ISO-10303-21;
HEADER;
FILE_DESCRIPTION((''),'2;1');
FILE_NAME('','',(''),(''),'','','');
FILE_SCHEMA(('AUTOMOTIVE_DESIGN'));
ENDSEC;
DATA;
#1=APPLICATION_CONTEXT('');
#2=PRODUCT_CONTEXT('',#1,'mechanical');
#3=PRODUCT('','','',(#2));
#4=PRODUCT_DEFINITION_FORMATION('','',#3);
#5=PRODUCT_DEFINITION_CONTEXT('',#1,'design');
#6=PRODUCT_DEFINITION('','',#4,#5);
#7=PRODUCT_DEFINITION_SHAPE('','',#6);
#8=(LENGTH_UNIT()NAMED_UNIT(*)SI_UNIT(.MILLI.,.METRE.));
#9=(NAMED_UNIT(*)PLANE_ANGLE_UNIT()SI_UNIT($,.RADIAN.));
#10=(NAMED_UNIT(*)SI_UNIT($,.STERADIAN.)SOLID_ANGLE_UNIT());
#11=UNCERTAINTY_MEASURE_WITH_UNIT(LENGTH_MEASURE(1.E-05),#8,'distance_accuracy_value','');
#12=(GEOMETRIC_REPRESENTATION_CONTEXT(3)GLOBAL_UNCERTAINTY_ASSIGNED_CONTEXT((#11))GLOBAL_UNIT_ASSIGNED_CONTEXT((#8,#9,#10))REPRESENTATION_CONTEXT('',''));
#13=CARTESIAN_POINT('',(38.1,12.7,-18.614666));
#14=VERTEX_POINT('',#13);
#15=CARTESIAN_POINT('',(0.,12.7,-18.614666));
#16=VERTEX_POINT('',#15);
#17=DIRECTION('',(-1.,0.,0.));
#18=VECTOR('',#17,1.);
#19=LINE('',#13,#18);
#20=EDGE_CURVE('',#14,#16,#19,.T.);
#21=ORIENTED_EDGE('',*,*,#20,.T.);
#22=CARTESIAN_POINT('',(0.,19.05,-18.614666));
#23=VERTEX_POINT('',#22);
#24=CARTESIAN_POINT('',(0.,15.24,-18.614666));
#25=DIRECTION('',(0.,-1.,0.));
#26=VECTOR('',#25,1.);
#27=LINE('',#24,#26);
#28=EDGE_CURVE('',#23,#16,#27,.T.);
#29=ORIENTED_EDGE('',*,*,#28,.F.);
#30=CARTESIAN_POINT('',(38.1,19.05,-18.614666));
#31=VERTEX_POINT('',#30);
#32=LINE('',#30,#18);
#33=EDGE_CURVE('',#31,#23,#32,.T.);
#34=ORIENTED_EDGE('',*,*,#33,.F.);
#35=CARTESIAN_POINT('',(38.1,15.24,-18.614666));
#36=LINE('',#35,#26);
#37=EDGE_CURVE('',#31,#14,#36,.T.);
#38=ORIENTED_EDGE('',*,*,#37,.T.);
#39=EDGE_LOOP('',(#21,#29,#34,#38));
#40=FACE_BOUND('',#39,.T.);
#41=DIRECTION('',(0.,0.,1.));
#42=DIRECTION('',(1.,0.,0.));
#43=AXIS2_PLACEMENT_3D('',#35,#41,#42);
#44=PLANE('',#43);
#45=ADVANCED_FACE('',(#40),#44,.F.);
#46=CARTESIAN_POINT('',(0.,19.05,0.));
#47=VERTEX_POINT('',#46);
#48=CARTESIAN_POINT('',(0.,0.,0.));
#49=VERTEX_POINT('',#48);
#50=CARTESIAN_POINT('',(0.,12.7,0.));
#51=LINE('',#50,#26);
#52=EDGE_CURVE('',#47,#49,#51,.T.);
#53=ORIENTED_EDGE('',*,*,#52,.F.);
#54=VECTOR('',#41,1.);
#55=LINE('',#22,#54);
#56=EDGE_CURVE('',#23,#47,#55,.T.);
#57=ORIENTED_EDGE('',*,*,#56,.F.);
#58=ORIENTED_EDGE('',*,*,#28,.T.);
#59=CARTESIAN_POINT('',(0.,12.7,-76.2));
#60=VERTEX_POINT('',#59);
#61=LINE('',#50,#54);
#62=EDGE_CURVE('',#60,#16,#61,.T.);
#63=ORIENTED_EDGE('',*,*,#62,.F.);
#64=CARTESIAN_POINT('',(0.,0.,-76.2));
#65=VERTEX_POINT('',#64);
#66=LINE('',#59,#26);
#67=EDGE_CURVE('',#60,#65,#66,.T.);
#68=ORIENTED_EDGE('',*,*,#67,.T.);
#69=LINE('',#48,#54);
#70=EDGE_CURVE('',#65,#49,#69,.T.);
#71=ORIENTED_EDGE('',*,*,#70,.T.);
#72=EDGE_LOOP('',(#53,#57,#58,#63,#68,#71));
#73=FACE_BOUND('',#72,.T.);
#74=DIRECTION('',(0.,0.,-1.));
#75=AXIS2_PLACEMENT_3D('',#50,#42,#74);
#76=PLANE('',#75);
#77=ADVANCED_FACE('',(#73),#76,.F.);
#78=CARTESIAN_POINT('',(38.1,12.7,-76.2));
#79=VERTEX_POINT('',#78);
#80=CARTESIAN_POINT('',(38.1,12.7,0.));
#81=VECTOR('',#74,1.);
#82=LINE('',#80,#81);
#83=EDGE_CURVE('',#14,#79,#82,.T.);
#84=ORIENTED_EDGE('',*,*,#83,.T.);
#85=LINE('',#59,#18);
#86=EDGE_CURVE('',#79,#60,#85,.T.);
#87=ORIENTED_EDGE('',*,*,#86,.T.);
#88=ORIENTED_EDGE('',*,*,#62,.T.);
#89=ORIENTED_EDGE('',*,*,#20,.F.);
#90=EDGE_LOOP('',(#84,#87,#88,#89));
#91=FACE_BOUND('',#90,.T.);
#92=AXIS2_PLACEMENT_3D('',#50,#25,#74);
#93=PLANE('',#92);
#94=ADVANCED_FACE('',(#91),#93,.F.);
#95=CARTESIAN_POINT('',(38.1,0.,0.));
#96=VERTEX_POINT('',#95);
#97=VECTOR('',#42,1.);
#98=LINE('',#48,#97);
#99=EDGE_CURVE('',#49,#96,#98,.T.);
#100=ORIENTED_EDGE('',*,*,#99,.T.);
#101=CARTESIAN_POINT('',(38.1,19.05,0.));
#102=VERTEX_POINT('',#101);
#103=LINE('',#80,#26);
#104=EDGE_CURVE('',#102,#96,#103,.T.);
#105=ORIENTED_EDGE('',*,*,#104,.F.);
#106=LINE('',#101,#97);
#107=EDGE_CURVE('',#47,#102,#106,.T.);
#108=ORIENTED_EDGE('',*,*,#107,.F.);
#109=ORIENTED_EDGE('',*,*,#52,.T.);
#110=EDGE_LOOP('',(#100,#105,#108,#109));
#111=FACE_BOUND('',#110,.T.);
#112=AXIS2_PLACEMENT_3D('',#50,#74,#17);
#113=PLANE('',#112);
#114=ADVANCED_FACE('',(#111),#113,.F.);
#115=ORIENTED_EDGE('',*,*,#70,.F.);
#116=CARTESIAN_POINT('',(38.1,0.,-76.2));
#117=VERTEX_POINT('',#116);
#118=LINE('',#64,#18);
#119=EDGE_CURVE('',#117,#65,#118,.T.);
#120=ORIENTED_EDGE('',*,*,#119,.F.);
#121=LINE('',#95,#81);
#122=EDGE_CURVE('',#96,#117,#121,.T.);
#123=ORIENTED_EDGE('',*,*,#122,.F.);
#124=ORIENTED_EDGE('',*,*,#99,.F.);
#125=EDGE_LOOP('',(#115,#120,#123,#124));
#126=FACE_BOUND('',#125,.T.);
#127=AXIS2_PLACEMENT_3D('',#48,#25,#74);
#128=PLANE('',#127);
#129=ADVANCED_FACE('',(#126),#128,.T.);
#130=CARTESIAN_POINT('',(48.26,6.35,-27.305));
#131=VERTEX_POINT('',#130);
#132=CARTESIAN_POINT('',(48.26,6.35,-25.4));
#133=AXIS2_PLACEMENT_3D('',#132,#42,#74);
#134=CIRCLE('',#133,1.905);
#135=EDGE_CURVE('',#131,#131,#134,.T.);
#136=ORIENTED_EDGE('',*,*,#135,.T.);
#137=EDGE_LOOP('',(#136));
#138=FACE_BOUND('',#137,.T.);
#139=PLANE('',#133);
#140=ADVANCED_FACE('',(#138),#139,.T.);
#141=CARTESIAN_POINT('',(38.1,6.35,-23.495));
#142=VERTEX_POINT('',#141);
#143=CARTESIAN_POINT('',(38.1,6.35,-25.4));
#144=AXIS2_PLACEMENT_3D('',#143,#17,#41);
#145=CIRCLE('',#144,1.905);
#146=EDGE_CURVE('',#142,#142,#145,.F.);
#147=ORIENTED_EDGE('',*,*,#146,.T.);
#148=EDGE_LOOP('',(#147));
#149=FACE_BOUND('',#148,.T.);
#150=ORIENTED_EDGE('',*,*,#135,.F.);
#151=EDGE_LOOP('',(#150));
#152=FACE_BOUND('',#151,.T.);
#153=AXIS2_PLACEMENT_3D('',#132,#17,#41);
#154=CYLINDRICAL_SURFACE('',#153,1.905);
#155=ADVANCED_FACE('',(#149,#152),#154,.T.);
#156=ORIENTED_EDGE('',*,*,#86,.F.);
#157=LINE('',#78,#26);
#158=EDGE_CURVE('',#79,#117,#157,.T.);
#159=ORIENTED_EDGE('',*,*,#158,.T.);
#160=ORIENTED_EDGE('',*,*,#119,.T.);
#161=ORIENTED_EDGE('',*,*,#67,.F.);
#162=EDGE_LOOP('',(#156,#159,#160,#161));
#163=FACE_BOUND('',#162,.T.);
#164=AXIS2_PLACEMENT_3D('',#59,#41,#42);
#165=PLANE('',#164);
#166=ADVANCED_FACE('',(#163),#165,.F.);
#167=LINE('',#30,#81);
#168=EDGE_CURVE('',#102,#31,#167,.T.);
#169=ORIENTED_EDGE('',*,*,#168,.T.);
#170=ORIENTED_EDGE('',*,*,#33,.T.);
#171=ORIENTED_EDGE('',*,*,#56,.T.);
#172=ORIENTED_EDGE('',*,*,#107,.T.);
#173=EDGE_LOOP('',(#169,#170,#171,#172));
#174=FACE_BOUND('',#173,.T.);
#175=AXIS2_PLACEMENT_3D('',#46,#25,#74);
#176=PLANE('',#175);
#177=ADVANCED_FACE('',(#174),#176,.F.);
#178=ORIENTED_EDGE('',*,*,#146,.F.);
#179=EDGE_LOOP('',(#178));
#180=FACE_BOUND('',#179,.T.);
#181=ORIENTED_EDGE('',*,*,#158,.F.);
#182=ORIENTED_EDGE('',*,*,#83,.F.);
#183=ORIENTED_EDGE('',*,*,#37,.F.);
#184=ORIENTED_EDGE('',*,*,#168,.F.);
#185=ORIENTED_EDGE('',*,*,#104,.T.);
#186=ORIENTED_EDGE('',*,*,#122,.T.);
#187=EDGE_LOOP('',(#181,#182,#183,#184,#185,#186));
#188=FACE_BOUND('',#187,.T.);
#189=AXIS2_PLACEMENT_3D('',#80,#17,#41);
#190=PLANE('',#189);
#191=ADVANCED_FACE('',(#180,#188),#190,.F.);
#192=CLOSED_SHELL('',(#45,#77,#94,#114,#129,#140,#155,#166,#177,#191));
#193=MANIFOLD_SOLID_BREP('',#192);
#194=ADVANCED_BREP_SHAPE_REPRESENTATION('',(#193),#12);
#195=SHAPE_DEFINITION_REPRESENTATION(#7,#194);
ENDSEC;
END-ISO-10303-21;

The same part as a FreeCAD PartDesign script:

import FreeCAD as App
import Part
import Sketcher

V = App.Vector
Q = App.Units.Quantity

doc = App.newDocument("Part")
body = doc.addObject("PartDesign::Body", "Body")

sketch1 = body.newObject("Sketcher::SketchObject", "Sketch")
sketch1.AttachmentSupport = (doc.getObject("XZ_Plane"), [""])
sketch1.MapMode = "FlatFace"
sketch1.addGeometry([
    Part.LineSegment(V(0, -76.2, 0), V(0, 0, 0)),
    Part.LineSegment(V(0, 0, 0), V(38.1, 0, 0)),
    Part.LineSegment(V(38.1, 0, 0), V(38.1, -76.2, 0)),
    Part.LineSegment(V(38.1, -76.2, 0), V(0, -76.2, 0)),
], False)
sketch1.addConstraint([
    Sketcher.Constraint("Coincident", 0, 2, 1, 1),
    Sketcher.Constraint("Coincident", 1, 2, 2, 1),
    Sketcher.Constraint("Coincident", 2, 2, 3, 1),
    Sketcher.Constraint("Coincident", 3, 2, 0, 1),
    Sketcher.Constraint("Vertical", 0),
    Sketcher.Constraint("Horizontal", 1),
    Sketcher.Constraint("Vertical", 2),
    Sketcher.Constraint("Horizontal", 3),
    Sketcher.Constraint("Coincident", 0, 2, -1, 1),
    Sketcher.Constraint("DistanceY", 0, 1, 0, 2, Q("3 in")),
    Sketcher.Constraint("DistanceX", 1, 1, 1, 2, Q("1.5 in")),
])
pad1 = body.newObject("PartDesign::Pad", "Pad")
pad1.Profile = sketch1
pad1.Length = Q("0.5 in")
pad1.Reversed = True

sketch2 = body.newObject("Sketcher::SketchObject", "Sketch001")
sketch2.AttachmentSupport = (doc.getObject("XZ_Plane"), [""])
sketch2.MapMode = "FlatFace"
sketch2.AttachmentOffset = App.Placement(V(0, 0, -0.5 * 25.4), App.Rotation())
sketch2.addGeometry([
    Part.LineSegment(V(0, -18.614666, 0), V(0, 0, 0)),
    Part.LineSegment(V(0, 0, 0), V(38.1, 0, 0)),
    Part.LineSegment(V(38.1, 0, 0), V(38.1, -18.614666, 0)),
    Part.LineSegment(V(38.1, -18.614666, 0), V(0, -18.614666, 0)),
], False)
sketch2.addConstraint([
    Sketcher.Constraint("Coincident", 0, 2, 1, 1),
    Sketcher.Constraint("Coincident", 1, 2, 2, 1),
    Sketcher.Constraint("Coincident", 2, 2, 3, 1),
    Sketcher.Constraint("Coincident", 3, 2, 0, 1),
    Sketcher.Constraint("Vertical", 0),
    Sketcher.Constraint("Horizontal", 1),
    Sketcher.Constraint("Vertical", 2),
    Sketcher.Constraint("Horizontal", 3),
    Sketcher.Constraint("Coincident", 0, 2, -1, 1),
    Sketcher.Constraint("DistanceX", 1, 1, 1, 2, Q("1.5 in")),
    Sketcher.Constraint("DistanceY", 0, 1, 0, 2, Q("18.614666 mm")),
])
pad2 = body.newObject("PartDesign::Pad", "Pad001")
pad2.Profile = sketch2
pad2.Length = Q("0.1 in")
pad2.Reversed = True

sketch3 = body.newObject("Sketcher::SketchObject", "Sketch002")
sketch3.AttachmentSupport = (doc.getObject("YZ_Plane"), [""])
sketch3.MapMode = "FlatFace"
sketch3.AttachmentOffset = App.Placement(V(0, 0, 1.5 * 25.4), App.Rotation())
sketch3.addGeometry(Part.Circle(V(6.35, -25.4, 0), V(0, 0, 1), 1.905), False)
sketch3.addConstraint([
    Sketcher.Constraint("Diameter", 0, Q("0.15 in")),
    Sketcher.Constraint("DistanceY", 0, 3, -1, 1, Q("1 in")),
    Sketcher.Constraint("DistanceX", -1, 1, 0, 3, Q("0.25 in")),
])
pad3 = body.newObject("PartDesign::Pad", "Pad002")
pad3.Profile = sketch3
pad3.Length = Q("0.4 in")

sketch4 = body.newObject("Sketcher::SketchObject", "Sketch003")
sketch4.AttachmentSupport = (doc.getObject("XZ_Plane"), [""])
sketch4.MapMode = "FlatFace"
sketch4.AttachmentOffset = App.Placement(V(0, 0, -0.6 * 25.4), App.Rotation())
sketch4.addGeometry([
    Part.LineSegment(V(0, -18.614666, 0), V(0, 0, 0)),
    Part.LineSegment(V(0, 0, 0), V(38.1, 0, 0)),
    Part.LineSegment(V(38.1, 0, 0), V(38.1, -18.614666, 0)),
    Part.LineSegment(V(38.1, -18.614666, 0), V(0, -18.614666, 0)),
], False)
sketch4.addConstraint([
    Sketcher.Constraint("Coincident", 0, 2, 1, 1),
    Sketcher.Constraint("Coincident", 1, 2, 2, 1),
    Sketcher.Constraint("Coincident", 2, 2, 3, 1),
    Sketcher.Constraint("Coincident", 3, 2, 0, 1),
    Sketcher.Constraint("Vertical", 0),
    Sketcher.Constraint("Horizontal", 1),
    Sketcher.Constraint("Vertical", 2),
    Sketcher.Constraint("Horizontal", 3),
    Sketcher.Constraint("Coincident", 0, 2, -1, 1),
    Sketcher.Constraint("DistanceX", 1, 1, 1, 2, Q("1.5 in")),
    Sketcher.Constraint("DistanceY", 0, 1, 0, 2, Q("18.614666 mm")),
])
pad4 = body.newObject("PartDesign::Pad", "Pad003")
pad4.Profile = sketch4
pad4.Length = Q("0.15 in")
pad4.Reversed = True

doc.recompute()
